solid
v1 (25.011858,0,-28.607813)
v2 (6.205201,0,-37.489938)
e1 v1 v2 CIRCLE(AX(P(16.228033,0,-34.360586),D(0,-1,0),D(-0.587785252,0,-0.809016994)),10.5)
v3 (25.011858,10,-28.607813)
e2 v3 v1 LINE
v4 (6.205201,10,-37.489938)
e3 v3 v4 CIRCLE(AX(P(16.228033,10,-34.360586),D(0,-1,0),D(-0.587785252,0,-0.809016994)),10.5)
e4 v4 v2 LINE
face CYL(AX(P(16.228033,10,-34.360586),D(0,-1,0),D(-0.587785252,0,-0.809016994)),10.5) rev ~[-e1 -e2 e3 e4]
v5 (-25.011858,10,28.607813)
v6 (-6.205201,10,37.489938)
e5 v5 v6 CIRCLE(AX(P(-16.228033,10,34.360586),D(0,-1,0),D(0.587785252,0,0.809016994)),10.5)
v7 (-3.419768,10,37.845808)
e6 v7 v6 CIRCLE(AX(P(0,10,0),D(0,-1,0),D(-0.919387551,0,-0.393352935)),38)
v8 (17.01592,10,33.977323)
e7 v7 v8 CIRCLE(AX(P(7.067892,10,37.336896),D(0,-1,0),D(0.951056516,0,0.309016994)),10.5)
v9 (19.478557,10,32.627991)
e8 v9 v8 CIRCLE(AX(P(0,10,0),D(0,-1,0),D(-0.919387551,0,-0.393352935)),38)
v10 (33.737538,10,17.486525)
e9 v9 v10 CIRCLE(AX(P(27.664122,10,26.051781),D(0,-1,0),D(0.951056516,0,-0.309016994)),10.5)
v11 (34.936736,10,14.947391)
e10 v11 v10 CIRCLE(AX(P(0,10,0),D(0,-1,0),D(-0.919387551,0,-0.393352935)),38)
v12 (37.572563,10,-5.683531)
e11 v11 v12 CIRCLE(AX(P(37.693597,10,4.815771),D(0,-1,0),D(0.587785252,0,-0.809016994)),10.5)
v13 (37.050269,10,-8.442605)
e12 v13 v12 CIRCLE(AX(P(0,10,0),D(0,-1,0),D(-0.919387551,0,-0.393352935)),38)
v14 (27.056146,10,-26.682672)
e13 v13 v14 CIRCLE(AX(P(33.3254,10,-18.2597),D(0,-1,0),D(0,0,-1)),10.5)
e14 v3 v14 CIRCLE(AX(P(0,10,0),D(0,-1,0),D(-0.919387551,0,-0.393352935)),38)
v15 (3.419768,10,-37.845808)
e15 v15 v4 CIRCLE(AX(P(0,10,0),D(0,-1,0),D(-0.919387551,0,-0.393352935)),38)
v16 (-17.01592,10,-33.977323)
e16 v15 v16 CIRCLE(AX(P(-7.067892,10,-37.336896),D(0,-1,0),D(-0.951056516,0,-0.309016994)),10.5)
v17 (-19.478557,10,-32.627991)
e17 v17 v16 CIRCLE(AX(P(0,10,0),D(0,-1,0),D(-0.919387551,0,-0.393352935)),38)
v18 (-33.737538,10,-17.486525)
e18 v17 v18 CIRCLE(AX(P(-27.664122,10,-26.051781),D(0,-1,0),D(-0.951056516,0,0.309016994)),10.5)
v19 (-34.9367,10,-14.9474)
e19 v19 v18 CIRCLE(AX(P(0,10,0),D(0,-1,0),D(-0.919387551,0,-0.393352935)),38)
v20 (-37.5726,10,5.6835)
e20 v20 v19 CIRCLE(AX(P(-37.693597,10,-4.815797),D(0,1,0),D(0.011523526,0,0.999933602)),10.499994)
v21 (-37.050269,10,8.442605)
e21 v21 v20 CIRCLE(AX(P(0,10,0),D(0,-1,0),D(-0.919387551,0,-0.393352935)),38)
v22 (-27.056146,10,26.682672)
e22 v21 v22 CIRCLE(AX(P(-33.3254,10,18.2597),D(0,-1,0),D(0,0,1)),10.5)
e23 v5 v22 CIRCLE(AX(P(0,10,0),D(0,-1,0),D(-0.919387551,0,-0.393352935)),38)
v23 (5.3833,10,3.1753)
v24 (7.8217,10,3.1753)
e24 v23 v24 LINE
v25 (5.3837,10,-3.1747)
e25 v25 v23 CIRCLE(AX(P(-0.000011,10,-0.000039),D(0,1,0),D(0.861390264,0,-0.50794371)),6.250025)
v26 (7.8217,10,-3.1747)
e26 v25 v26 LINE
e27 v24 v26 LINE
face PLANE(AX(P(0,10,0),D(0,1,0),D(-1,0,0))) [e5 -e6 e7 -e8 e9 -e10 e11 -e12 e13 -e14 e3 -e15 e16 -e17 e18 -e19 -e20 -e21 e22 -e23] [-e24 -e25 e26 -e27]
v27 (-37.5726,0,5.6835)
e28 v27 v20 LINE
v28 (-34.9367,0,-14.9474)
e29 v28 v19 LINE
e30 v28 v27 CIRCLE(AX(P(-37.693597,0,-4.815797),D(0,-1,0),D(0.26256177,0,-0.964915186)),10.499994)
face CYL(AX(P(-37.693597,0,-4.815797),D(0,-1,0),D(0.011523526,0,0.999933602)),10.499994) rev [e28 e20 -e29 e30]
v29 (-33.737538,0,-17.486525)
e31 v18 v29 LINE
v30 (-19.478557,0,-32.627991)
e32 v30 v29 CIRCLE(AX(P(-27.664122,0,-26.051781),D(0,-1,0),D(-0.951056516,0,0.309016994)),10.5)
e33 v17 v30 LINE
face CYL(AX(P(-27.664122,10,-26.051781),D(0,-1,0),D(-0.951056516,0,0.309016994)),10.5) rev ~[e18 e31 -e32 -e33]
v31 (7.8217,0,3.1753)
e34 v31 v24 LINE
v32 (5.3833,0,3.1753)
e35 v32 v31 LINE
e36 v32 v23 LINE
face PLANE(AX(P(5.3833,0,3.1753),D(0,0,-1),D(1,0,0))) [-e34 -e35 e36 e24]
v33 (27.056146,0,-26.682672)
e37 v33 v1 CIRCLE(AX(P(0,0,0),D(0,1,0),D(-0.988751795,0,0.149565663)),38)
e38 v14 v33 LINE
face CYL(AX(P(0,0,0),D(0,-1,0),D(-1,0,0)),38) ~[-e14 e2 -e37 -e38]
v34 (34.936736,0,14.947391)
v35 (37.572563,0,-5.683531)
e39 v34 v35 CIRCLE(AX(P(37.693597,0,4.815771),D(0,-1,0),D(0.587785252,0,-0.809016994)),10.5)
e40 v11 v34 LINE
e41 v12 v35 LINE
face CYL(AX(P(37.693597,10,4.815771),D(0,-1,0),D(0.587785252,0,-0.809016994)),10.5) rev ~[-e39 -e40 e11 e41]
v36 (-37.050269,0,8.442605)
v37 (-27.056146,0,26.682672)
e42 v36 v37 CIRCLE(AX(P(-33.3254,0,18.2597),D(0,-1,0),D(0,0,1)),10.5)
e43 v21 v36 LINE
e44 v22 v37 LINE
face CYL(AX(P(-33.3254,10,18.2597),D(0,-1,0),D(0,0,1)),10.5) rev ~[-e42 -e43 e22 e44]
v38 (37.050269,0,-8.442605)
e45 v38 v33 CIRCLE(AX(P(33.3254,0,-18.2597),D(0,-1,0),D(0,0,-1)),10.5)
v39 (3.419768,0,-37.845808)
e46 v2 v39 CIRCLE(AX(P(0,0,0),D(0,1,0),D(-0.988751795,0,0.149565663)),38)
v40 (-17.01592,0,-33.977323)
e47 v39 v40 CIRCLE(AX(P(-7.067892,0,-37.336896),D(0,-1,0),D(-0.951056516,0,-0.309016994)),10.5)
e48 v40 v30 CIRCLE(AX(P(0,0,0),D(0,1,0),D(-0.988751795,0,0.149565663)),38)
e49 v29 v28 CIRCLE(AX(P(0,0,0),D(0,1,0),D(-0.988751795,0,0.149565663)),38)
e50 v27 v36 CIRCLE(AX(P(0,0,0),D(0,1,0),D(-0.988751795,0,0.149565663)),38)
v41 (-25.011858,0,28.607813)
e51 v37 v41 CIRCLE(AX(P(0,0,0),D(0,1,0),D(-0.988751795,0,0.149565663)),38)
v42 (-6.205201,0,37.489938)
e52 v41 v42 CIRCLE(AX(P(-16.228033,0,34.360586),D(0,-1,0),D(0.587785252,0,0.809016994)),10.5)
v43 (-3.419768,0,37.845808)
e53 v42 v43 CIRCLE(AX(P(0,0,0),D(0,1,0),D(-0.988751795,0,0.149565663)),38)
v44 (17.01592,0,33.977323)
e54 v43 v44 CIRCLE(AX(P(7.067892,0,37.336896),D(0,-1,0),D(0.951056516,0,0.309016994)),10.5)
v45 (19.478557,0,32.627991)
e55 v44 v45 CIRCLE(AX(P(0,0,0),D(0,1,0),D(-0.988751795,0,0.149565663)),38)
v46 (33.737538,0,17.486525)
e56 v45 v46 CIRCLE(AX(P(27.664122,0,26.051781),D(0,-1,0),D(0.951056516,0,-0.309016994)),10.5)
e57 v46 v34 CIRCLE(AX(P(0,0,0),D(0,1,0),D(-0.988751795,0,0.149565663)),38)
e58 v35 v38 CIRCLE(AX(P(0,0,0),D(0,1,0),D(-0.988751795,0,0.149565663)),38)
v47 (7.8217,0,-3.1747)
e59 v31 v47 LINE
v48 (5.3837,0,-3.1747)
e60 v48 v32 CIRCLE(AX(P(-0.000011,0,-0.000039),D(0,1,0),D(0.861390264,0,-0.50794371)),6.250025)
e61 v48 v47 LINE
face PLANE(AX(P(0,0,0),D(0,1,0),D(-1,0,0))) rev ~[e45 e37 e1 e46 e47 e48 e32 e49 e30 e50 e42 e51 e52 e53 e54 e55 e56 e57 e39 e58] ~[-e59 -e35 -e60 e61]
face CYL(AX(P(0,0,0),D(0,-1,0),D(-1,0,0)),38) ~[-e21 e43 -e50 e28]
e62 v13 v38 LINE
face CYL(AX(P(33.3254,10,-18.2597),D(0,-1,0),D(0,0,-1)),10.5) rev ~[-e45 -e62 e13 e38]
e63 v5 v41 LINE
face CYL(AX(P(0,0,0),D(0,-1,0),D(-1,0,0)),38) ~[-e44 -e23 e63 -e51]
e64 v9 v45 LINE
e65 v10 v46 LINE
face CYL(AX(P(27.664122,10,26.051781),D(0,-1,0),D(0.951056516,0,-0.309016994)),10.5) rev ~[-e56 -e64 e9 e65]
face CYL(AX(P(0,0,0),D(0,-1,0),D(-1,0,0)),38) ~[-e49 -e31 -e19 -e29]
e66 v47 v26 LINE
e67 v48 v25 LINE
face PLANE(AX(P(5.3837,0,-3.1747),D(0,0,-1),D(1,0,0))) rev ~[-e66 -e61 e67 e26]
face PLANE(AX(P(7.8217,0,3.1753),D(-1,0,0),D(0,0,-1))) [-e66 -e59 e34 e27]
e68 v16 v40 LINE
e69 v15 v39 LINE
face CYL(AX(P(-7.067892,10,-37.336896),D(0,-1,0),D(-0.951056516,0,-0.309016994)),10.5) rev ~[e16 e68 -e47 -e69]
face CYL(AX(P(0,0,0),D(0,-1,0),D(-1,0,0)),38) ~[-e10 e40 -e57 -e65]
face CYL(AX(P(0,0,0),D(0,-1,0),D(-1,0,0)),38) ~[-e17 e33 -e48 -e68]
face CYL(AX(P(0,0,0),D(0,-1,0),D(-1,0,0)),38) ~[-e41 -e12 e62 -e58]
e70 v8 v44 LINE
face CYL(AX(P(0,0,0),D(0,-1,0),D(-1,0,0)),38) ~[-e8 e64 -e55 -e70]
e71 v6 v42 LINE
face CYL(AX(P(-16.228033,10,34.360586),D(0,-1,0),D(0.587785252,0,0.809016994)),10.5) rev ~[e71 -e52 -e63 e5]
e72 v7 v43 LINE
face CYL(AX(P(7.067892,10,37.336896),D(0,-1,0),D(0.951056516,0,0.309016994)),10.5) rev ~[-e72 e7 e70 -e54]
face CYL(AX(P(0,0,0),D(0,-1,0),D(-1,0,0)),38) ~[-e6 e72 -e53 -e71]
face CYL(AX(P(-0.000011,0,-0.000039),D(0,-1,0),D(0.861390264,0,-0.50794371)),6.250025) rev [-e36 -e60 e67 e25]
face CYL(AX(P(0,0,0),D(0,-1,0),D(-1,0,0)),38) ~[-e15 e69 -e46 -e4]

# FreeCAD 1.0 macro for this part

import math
import FreeCAD as App
import Part
import Sketcher
from FreeCAD import Vector
Q = App.Units.Quantity

doc = App.newDocument("Part")
params = doc.addObject("Spreadsheet::Sheet", "Params")
for row, (alias, value) in enumerate([
    ("sketch1_radius", "38 mm"),
    ("sketch1_radius2", "10.5 mm"),
    ("sketch1_radius3", "6.25 mm"),
    ("sketch1_height", "6.35 mm"),
    ("pad1_length", "10 mm"),
    ("sketch2_diameter", "21 mm"),
    ("hole_diameter", "21 mm"),
], start=1):
    params.set(f"A{row}", alias)
    params.set(f"B{row}", "=" + value)
    params.setAlias(f"B{row}", alias)

body = doc.addObject("PartDesign::Body", "Body")

# Sketch on XZ plane
sketch1 = body.newObject("Sketcher::SketchObject", "Sketch")
sketch1.AttachmentSupport = (doc.getObject("XZ_Plane"), [""])
sketch1.MapMode = "FlatFace"
sketch1.addGeometry([
    Part.ArcOfCircle(Part.Circle(Vector(-37.7, -4.8, 0), Vector(0, 0, 1), 10.5), math.radians(-75), math.radians(89)),  # 0
    Part.ArcOfCircle(Part.Circle(Vector(0, 0, 0), Vector(0, 0, 1), 38), math.radians(-157), math.radians(171)),  # 1
    Part.ArcOfCircle(Part.Circle(Vector(0, 0, 0), Vector(0, 0, 1), 6.3), math.radians(31), math.radians(329)),  # 2
    Part.LineSegment(Vector(5.4, -3.2, 0), Vector(7.8, -3.2, 0)),  # 3
    Part.LineSegment(Vector(7.8, -3.2, 0), Vector(7.8, 3.2, 0)),  # 4
    Part.LineSegment(Vector(7.8, 3.2, 0), Vector(5.4, 3.2, 0)),  # 5
], False)
sketch1.addConstraint([
    Sketcher.Constraint("Coincident", 0, 1, 1, 1),
    Sketcher.Constraint("Coincident", 1, 2, 0, 2),
    Sketcher.Constraint("Coincident", 2, 2, 3, 1),
    Sketcher.Constraint("Coincident", 3, 2, 4, 1),
    Sketcher.Constraint("Coincident", 4, 2, 5, 1),
    Sketcher.Constraint("Coincident", 5, 2, 2, 1),
    Sketcher.Constraint("Horizontal", 3),
    Sketcher.Constraint("Vertical", 4),
    Sketcher.Constraint("Horizontal", 5),
    Sketcher.Constraint("Coincident", 1, 3, -1, 1),
    Sketcher.Constraint("Coincident", 2, 3, -1, 1),
    Sketcher.Constraint("Radius", 1, Q("38 mm")),
    Sketcher.Constraint("Radius", 0, Q("10.5 mm")),
    Sketcher.Constraint("Radius", 2, Q("6.25 mm")),
    Sketcher.Constraint("DistanceY", 4, 1, 4, 2, Q("6.35 mm")),
    Sketcher.Constraint("DistanceX", 3, 1, 3, 2, Q("2.438 mm")),
    Sketcher.Constraint("DistanceX", 5, 2, 5, 1, Q("2.4384 mm")),
    Sketcher.Constraint("DistanceX", 0, 3, 0, 1, Q("2.757 mm")),
    Sketcher.Constraint("DistanceX", 0, 3, 1, 2, Q("0.121 mm")),
])
sketch1.setExpression("Constraints[11]", "Params.sketch1_radius")
sketch1.setExpression("Constraints[12]", "Params.sketch1_radius2")
sketch1.setExpression("Constraints[13]", "Params.sketch1_radius3")
sketch1.setExpression("Constraints[14]", "Params.sketch1_height")
pad1 = body.newObject("PartDesign::Pad", "Pad")
pad1.Profile = sketch1
pad1.setExpression("Length", "Params.pad1_length")
pad1.Reversed = True

# Sketch on XZ plane
sketch2 = body.newObject("Sketcher::SketchObject", "Sketch001")
sketch2.AttachmentSupport = (doc.getObject("XZ_Plane"), [""])
sketch2.MapMode = "FlatFace"
sketch2.AttachmentOffset = App.Placement(Vector(0, 0, -10), App.Rotation())
sketch2.addGeometry(Part.Circle(Vector(-33, 18, 0), Vector(0, 0, 1), 10), False)
sketch2.addConstraint([
    Sketcher.Constraint("Diameter", 0, Q("21 mm")),
    Sketcher.Constraint("DistanceX", 0, 3, -1, 1, Q("33.3254 mm")),
    Sketcher.Constraint("DistanceY", -1, 1, 0, 3, Q("18.2597 mm")),
])
sketch2.setExpression("Constraints[0]", "Params.sketch2_diameter")
doc.recompute()
hole = body.newObject("PartDesign::Hole", "Hole")
hole.Profile = sketch2
hole.ThreadType = "None"
hole.setExpression("Diameter", "Params.hole_diameter")
hole.DepthType = "ThroughAll"
hole.Reversed = True
doc.recompute()

polarpattern = body.newObject("PartDesign::PolarPattern", "PolarPattern")
polarpattern.Originals = [hole]
polarpattern.Axis = (doc.getObject("Y_Axis"), [""])
polarpattern.Angle = 360
polarpattern.Occurrences = 10
body.Tip = polarpattern

doc.recompute()
